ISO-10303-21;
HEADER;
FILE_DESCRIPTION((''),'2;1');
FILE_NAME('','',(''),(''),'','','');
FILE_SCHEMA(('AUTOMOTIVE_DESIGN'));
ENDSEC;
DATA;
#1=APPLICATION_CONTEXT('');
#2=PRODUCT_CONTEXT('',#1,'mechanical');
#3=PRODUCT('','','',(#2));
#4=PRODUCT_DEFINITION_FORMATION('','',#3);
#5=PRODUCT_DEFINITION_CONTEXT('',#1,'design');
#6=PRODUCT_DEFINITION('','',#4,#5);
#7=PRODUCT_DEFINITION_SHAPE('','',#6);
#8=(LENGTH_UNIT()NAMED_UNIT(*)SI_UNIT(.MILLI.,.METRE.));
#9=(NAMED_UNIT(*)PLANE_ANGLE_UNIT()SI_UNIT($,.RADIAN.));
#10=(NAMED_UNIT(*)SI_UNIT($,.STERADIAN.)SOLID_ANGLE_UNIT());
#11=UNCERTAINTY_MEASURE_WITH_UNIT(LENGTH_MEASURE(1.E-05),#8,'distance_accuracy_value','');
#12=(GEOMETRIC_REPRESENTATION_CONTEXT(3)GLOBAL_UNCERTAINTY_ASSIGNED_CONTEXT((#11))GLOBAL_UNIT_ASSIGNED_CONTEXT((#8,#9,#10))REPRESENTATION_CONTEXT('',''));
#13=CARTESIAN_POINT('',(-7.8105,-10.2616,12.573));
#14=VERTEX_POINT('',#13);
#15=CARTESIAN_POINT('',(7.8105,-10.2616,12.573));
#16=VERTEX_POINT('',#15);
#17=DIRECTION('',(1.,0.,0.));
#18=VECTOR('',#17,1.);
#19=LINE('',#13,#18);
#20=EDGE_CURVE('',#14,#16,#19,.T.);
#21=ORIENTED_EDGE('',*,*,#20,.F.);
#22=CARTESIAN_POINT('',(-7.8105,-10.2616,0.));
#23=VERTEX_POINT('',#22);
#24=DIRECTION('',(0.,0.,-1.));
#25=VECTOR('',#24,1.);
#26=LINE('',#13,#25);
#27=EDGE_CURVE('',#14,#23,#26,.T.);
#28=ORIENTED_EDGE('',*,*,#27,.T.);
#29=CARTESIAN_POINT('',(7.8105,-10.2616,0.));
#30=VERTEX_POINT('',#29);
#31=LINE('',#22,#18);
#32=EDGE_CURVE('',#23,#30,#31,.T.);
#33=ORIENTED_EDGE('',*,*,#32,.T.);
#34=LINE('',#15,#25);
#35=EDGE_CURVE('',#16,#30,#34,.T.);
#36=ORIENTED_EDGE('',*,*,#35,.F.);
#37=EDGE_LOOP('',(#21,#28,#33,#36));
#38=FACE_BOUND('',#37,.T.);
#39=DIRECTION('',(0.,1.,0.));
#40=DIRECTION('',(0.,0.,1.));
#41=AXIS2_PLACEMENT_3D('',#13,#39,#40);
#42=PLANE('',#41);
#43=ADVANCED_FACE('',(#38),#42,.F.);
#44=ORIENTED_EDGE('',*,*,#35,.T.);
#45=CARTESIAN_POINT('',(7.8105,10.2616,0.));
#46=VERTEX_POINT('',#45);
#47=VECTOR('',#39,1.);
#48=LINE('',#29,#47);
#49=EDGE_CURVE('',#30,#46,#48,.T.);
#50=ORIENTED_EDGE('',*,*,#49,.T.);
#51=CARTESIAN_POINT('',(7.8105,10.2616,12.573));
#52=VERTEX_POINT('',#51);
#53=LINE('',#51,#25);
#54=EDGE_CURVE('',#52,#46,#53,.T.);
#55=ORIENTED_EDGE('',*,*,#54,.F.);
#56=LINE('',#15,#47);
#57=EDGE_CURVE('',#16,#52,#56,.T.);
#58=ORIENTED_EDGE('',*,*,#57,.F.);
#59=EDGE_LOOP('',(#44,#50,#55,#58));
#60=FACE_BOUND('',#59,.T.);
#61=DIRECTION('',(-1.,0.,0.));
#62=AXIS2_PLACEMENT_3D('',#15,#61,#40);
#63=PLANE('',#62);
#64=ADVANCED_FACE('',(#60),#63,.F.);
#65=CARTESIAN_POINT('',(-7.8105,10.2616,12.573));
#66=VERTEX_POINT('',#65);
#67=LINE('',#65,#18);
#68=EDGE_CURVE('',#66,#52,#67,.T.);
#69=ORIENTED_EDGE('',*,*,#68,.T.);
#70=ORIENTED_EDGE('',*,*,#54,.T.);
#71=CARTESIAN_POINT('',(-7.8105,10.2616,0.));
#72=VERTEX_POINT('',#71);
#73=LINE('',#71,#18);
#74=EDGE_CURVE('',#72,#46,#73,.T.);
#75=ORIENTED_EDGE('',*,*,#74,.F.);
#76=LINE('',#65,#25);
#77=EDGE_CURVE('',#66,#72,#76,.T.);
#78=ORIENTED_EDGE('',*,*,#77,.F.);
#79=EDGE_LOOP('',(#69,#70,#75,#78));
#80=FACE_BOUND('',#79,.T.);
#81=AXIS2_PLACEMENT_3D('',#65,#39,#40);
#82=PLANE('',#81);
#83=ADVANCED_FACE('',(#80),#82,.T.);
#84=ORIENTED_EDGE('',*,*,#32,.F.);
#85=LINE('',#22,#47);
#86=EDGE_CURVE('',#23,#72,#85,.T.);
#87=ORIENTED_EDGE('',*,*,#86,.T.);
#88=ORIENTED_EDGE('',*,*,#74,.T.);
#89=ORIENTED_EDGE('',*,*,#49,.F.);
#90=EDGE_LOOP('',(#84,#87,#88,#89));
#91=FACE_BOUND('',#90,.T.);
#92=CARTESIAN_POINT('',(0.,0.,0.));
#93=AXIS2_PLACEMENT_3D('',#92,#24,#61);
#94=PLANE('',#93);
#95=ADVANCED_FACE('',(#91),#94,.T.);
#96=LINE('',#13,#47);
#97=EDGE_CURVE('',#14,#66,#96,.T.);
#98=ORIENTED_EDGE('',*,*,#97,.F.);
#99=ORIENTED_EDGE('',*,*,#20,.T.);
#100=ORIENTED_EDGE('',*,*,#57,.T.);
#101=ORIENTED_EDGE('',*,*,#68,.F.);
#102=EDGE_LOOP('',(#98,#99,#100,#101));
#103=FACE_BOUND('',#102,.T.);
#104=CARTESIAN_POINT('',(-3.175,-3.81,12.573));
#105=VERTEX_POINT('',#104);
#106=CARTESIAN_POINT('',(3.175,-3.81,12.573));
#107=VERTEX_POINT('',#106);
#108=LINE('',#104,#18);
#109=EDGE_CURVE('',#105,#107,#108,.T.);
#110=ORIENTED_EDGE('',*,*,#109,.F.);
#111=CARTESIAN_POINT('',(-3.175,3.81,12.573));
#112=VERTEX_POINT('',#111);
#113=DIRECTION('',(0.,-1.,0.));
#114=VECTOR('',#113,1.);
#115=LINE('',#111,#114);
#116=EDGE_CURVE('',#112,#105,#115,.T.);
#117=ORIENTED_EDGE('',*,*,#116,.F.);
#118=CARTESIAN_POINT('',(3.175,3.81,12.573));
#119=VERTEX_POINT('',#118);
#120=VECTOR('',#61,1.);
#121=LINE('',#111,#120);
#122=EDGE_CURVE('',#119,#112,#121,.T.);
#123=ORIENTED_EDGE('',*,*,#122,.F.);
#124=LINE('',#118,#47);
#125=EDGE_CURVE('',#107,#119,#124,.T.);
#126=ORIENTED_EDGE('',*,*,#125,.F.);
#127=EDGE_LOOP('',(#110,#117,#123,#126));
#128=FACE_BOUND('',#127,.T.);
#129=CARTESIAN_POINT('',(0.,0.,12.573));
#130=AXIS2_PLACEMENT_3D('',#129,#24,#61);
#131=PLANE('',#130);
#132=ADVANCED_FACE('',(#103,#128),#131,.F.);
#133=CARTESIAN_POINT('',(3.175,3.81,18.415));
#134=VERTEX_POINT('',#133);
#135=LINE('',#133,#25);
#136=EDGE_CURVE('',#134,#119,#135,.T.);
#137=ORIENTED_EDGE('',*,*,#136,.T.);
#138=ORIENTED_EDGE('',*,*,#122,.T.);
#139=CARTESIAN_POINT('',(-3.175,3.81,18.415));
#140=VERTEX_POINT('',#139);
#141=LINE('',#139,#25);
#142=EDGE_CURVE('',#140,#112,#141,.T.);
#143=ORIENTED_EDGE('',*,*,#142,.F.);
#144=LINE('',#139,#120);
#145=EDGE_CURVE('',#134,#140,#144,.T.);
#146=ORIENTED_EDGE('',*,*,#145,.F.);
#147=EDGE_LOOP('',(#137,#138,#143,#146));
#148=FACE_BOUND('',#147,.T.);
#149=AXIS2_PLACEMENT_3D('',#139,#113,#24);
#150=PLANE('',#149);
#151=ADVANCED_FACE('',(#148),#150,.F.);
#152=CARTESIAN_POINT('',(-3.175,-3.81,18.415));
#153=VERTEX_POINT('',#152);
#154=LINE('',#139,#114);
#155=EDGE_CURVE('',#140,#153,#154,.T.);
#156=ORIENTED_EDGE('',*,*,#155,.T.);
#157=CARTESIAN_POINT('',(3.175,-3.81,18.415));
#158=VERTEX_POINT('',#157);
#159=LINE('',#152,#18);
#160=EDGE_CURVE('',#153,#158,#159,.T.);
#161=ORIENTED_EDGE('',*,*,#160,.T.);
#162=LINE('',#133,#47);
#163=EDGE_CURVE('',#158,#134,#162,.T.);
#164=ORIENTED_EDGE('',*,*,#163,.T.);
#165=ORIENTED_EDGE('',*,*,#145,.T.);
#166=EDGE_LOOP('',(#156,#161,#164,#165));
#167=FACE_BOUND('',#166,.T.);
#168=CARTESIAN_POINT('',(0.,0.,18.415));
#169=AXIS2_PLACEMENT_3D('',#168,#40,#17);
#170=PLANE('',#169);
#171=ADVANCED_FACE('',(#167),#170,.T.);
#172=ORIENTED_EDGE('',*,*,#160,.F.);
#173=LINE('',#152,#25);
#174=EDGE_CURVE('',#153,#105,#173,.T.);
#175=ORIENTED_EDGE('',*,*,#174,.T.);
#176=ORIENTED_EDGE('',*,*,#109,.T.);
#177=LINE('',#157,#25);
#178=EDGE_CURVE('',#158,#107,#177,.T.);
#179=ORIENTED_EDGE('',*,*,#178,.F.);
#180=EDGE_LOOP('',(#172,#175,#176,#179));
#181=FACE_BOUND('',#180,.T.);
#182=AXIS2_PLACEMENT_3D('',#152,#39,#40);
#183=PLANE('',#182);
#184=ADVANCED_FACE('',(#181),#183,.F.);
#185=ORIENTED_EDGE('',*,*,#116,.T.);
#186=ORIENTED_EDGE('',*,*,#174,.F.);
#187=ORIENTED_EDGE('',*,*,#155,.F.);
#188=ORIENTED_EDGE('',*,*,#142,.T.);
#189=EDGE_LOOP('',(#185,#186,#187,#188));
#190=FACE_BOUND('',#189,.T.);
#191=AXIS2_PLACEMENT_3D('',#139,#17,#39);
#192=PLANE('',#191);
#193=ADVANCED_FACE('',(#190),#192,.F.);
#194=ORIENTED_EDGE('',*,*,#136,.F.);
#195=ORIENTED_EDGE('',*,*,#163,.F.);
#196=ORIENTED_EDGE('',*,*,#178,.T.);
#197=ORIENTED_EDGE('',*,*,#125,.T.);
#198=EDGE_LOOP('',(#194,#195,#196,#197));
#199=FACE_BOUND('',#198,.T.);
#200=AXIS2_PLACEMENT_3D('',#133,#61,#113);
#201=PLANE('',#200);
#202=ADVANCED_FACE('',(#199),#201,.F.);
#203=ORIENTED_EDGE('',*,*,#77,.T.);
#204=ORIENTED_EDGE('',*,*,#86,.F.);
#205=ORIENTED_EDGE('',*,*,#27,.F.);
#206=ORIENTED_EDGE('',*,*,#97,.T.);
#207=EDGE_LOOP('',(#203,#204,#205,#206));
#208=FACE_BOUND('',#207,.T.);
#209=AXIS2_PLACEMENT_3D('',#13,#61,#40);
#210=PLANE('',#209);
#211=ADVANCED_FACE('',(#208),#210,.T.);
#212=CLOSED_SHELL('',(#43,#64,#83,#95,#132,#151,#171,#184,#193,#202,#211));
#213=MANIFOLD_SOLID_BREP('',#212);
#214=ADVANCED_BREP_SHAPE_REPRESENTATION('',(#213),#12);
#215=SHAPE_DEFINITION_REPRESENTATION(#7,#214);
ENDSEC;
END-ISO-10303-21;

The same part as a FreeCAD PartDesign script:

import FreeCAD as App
import Part
import Sketcher
Q = App.Units.Quantity


def add_polygon(sketch, points):
    """Adds a closed chain of lines whose ends are joined by coincident constraints."""
    first, n = sketch.GeometryCount, len(points)
    for a, b in zip(points, points[1:] + points[:1]):
        sketch.addGeometry(Part.LineSegment(App.Vector(*a, 0), App.Vector(*b, 0)), False)
    for i in range(n):
        sketch.addConstraint(Sketcher.Constraint("Coincident", first + i, 2, first + (i + 1) % n, 1))

doc = App.newDocument("Part")
body = doc.addObject("PartDesign::Body", "Body")

# Sketch on XY plane
sketch1 = body.newObject("Sketcher::SketchObject", "Sketch")
sketch1.AttachmentSupport = (doc.getObject("XY_Plane"), [""])
sketch1.MapMode = "FlatFace"
add_polygon(sketch1, [(-8, 10), (-8, -10), (8, -10), (8, 10)])  # lines 0-3
sketch1.addConstraint([
    Sketcher.Constraint("Vertical", 0),
    Sketcher.Constraint("Horizontal", 1),
    Sketcher.Constraint("Vertical", 2),
    Sketcher.Constraint("Horizontal", 3),
    Sketcher.Constraint("Symmetric", 0, 2, 2, 2, -1, 1),
    Sketcher.Constraint("DistanceX", 1, 1, 1, 2, Q("0.615 in")),
    Sketcher.Constraint("DistanceY", 0, 2, 0, 1, Q("0.808 in")),
])
pad1 = body.newObject("PartDesign::Pad", "Pad")
pad1.Profile = sketch1
pad1.Length = Q("0.495 in")

# Sketch on XY plane
sketch2 = body.newObject("Sketcher::SketchObject", "Sketch001")
sketch2.AttachmentSupport = (doc.getObject("XY_Plane"), [""])
sketch2.MapMode = "FlatFace"
sketch2.AttachmentOffset = App.Placement(App.Vector(0, 0, 0.495 * 25.4), App.Rotation())
add_polygon(sketch2, [(-3, 4), (-3, -4), (3, -4), (3, 4)])  # lines 0-3
sketch2.addConstraint([
    Sketcher.Constraint("Vertical", 0),
    Sketcher.Constraint("Horizontal", 1),
    Sketcher.Constraint("Vertical", 2),
    Sketcher.Constraint("Horizontal", 3),
    Sketcher.Constraint("Symmetric", 0, 2, 2, 2, -1, 1),
    Sketcher.Constraint("DistanceY", 0, 2, 0, 1, Q("0.3 in")),
    Sketcher.Constraint("DistanceX", 1, 1, 1, 2, Q("0.25 in")),
])
pad2 = body.newObject("PartDesign::Pad", "Pad001")
pad2.Profile = sketch2
pad2.Length = Q("0.23 in")

doc.recompute()
